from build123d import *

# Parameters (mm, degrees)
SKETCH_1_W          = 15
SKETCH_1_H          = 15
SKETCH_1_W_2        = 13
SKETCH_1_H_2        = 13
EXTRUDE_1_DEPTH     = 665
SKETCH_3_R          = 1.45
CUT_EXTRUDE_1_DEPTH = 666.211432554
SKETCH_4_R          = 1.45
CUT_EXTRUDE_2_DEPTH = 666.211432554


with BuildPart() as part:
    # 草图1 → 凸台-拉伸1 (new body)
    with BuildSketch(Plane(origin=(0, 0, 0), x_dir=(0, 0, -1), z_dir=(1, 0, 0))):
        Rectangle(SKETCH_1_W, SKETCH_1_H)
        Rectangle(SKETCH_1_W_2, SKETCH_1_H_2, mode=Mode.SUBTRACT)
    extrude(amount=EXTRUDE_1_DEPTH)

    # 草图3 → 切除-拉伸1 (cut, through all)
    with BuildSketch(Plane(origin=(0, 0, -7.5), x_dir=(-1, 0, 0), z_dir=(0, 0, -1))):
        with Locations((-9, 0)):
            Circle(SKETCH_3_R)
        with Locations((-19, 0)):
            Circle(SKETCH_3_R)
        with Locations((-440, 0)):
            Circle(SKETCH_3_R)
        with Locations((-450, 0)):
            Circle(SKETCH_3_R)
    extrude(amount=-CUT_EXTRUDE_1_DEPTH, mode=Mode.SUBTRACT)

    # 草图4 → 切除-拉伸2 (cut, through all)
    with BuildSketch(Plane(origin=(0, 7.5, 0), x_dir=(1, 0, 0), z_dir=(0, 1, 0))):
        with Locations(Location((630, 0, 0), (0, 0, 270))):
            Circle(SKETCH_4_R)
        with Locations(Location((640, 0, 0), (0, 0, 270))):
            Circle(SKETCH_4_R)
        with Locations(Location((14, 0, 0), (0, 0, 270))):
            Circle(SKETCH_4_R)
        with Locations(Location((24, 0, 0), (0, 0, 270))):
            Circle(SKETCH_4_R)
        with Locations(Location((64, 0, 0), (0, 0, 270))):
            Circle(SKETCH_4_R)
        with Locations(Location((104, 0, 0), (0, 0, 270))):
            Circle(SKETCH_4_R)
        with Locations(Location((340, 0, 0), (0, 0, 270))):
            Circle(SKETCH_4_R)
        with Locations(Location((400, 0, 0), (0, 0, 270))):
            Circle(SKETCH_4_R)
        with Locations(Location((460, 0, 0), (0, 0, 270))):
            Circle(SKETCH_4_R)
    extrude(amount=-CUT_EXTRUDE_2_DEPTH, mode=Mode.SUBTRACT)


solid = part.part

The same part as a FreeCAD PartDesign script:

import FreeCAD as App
import Part
import Sketcher
from FreeCAD import Vector
Q = App.Units.Quantity


def add_polygon(sketch, points):
    """Adds a closed chain of lines whose ends are joined by coincident constraints."""
    first, n = sketch.GeometryCount, len(points)
    for a, b in zip(points, points[1:] + points[:1]):
        sketch.addGeometry(Part.LineSegment(App.Vector(*a, 0), App.Vector(*b, 0)), False)
    for i in range(n):
        sketch.addConstraint(Sketcher.Constraint("Coincident", first + i, 2, first + (i + 1) % n, 1))

doc = App.newDocument("Part")
body = doc.addObject("PartDesign::Body", "Body")

# Sketch on YZ plane
sketch1 = body.newObject("Sketcher::SketchObject", "Sketch")
sketch1.AttachmentSupport = (doc.getObject("YZ_Plane"), [""])
sketch1.MapMode = "FlatFace"
add_polygon(sketch1, [(8, 8), (-8, 8), (-8, -8), (8, -8)])  # lines 0-3
add_polygon(sketch1, [(-6, -6), (-6, 6), (6, 6), (6, -6)])  # lines 4-7
sketch1.addConstraint([
    Sketcher.Constraint("Horizontal", 0),
    Sketcher.Constraint("Vertical", 1),
    Sketcher.Constraint("Horizontal", 2),
    Sketcher.Constraint("Vertical", 3),
    Sketcher.Constraint("Vertical", 4),
    Sketcher.Constraint("Horizontal", 5),
    Sketcher.Constraint("Vertical", 6),
    Sketcher.Constraint("Horizontal", 7),
    Sketcher.Constraint("Symmetric", 0, 2, 2, 2, -1, 1),
    Sketcher.Constraint("Symmetric", 4, 2, 6, 2, -1, 1),
    Sketcher.Constraint("Equal", 2, 1),
    Sketcher.Constraint("Equal", 7, 4),
    Sketcher.Constraint("DistanceX", 0, 2, 0, 1, Q("15 mm")),
    Sketcher.Constraint("DistanceX", 5, 1, 5, 2, Q("13 mm")),
])
pad1 = body.newObject("PartDesign::Pad", "Pad")
pad1.Profile = sketch1
pad1.Length = 665

# Sketch on XY plane
sketch2 = body.newObject("Sketcher::SketchObject", "Sketch001")
sketch2.AttachmentSupport = (doc.getObject("XY_Plane"), [""])
sketch2.MapMode = "FlatFace"
sketch2.AttachmentOffset = App.Placement(Vector(0, 0, -7.5), App.Rotation())
sketch2.addGeometry([
    Part.Circle(Vector(9, 0, 0), Vector(0, 0, 1), 1.4),
    Part.Circle(Vector(19, 0, 0), Vector(0, 0, 1), 1.4),
    Part.Circle(Vector(440, 0, 0), Vector(0, 0, 1), 1.4),
    Part.Circle(Vector(450, 0, 0), Vector(0, 0, 1), 1.4),
], False)
sketch2.addConstraint([
    Sketcher.Constraint("Equal", 0, 1),
    Sketcher.Constraint("Equal", 1, 2),
    Sketcher.Constraint("Equal", 2, 3),
    Sketcher.Constraint("PointOnObject", 0, 3, -1),
    Sketcher.Constraint("PointOnObject", 1, 3, -1),
    Sketcher.Constraint("PointOnObject", 2, 3, -1),
    Sketcher.Constraint("PointOnObject", 3, 3, -1),
    Sketcher.Constraint("Diameter", 0, Q("2.9 mm")),
    Sketcher.Constraint("DistanceX", -1, 1, 0, 3, Q("9 mm")),
    Sketcher.Constraint("DistanceX", -1, 1, 1, 3, Q("19 mm")),
    Sketcher.Constraint("DistanceX", -1, 1, 2, 3, Q("440 mm")),
    Sketcher.Constraint("DistanceX", -1, 1, 3, 3, Q("450 mm")),
])
pocket1 = body.newObject("PartDesign::Pocket", "Pocket")
pocket1.Profile = sketch2
pocket1.Type = "ThroughAll"
pocket1.Reversed = True

# Sketch on XZ plane
sketch3 = body.newObject("Sketcher::SketchObject", "Sketch002")
sketch3.AttachmentSupport = (doc.getObject("XZ_Plane"), [""])
sketch3.MapMode = "FlatFace"
sketch3.AttachmentOffset = App.Placement(Vector(0, 0, -7.5), App.Rotation())
sketch3.addGeometry([
    Part.Circle(Vector(630, 0, 0), Vector(0, 0, 1), 1.4),  # 0
    Part.Circle(Vector(640, 0, 0), Vector(0, 0, 1), 1.4),  # 1
    Part.Circle(Vector(14, 0, 0), Vector(0, 0, 1), 1.4),  # 2
    Part.Circle(Vector(24, 0, 0), Vector(0, 0, 1), 1.4),  # 3
    Part.Circle(Vector(64, 0, 0), Vector(0, 0, 1), 1.4),  # 4
    Part.Circle(Vector(104, 0, 0), Vector(0, 0, 1), 1.4),  # 5
    Part.Circle(Vector(340, 0, 0), Vector(0, 0, 1), 1.4),  # 6
    Part.Circle(Vector(400, 0, 0), Vector(0, 0, 1), 1.4),  # 7
    Part.Circle(Vector(460, 0, 0), Vector(0, 0, 1), 1.4),  # 8
], False)
sketch3.addConstraint([
    Sketcher.Constraint("Equal", 0, 1),
    Sketcher.Constraint("Equal", 1, 2),
    Sketcher.Constraint("Equal", 2, 3),
    Sketcher.Constraint("Equal", 3, 4),
    Sketcher.Constraint("Equal", 4, 5),
    Sketcher.Constraint("Equal", 5, 6),
    Sketcher.Constraint("Equal", 6, 7),
    Sketcher.Constraint("Equal", 7, 8),
    Sketcher.Constraint("PointOnObject", 0, 3, -1),
    Sketcher.Constraint("PointOnObject", 1, 3, -1),
    Sketcher.Constraint("PointOnObject", 2, 3, -1),
    Sketcher.Constraint("PointOnObject", 3, 3, -1),
    Sketcher.Constraint("PointOnObject", 4, 3, -1),
    Sketcher.Constraint("PointOnObject", 5, 3, -1),
    Sketcher.Constraint("PointOnObject", 6, 3, -1),
    Sketcher.Constraint("PointOnObject", 7, 3, -1),
    Sketcher.Constraint("PointOnObject", 8, 3, -1),
    Sketcher.Constraint("Diameter", 0, Q("2.9 mm")),
    Sketcher.Constraint("DistanceX", -1, 1, 0, 3, Q("630 mm")),
    Sketcher.Constraint("DistanceX", -1, 1, 1, 3, Q("640 mm")),
    Sketcher.Constraint("DistanceX", -1, 1, 2, 3, Q("14 mm")),
    Sketcher.Constraint("DistanceX", -1, 1, 3, 3, Q("24 mm")),
    Sketcher.Constraint("DistanceX", -1, 1, 4, 3, Q("64 mm")),
    Sketcher.Constraint("DistanceX", -1, 1, 5, 3, Q("104 mm")),
    Sketcher.Constraint("DistanceX", -1, 1, 6, 3, Q("340 mm")),
    Sketcher.Constraint("DistanceX", -1, 1, 7, 3, Q("400 mm")),
    Sketcher.Constraint("DistanceX", -1, 1, 8, 3, Q("460 mm")),
])
pocket2 = body.newObject("PartDesign::Pocket", "Pocket001")
pocket2.Profile = sketch3
pocket2.Type = "ThroughAll"
pocket2.Reversed = True

doc.recompute()
